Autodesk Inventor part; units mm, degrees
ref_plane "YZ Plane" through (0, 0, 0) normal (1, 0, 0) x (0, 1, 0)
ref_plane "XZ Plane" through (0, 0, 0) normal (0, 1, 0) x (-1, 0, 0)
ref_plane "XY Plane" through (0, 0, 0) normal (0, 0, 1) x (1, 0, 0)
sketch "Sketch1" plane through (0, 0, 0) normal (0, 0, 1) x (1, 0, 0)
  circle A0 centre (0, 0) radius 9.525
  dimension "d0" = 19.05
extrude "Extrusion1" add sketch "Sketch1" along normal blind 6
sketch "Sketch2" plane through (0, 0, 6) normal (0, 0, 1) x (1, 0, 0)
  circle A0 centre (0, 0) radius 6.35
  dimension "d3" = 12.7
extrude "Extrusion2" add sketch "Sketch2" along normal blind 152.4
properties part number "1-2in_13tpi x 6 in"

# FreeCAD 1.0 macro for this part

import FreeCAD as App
import Part
import Sketcher
from FreeCAD import Vector
Q = App.Units.Quantity

doc = App.newDocument("Part")
params = doc.addObject("Spreadsheet::Sheet", "Params")
for row, (alias, value) in enumerate([
    ("sketch1_diameter", "0.75 in"),
    ("pad1_length", "6 mm"),
    ("sketch2_diameter", "0.5 in"),
    ("pad2_length", "6 in"),
], start=1):
    params.set(f"A{row}", alias)
    params.set(f"B{row}", "=" + value)
    params.setAlias(f"B{row}", alias)

body = doc.addObject("PartDesign::Body", "Body")

sketch1 = doc.addObject("Sketcher::SketchObject", "Sketch")
body.addObject(sketch1)
sketch1.AttachmentSupport = (doc.XY_Plane, [""])
sketch1.MapMode = "FlatFace"
sketch1.addGeometry(Part.Circle(Vector(0, 0, 0), Vector(0, 0, 1), 10), False)
sketch1.addConstraint([
    Sketcher.Constraint("Coincident", 0, 3, -1, 1),
    Sketcher.Constraint("Diameter", 0, Q("0.75 in")),
])
sketch1.setExpression("Constraints[1]", "Params.sketch1_diameter")
pad1 = doc.addObject("PartDesign::Pad", "Pad")
body.addObject(pad1)
pad1.Profile = sketch1
pad1.setExpression("Length", "Params.pad1_length")

sketch2 = doc.addObject("Sketcher::SketchObject", "Sketch001")
body.addObject(sketch2)
sketch2.AttachmentSupport = (doc.XY_Plane, [""])
sketch2.MapMode = "FlatFace"
sketch2.AttachmentOffset = App.Placement(Vector(0, 0, 6), App.Rotation())
sketch2.addGeometry(Part.Circle(Vector(0, 0, 0), Vector(0, 0, 1), 6), False)
sketch2.addConstraint([
    Sketcher.Constraint("Coincident", 0, 3, -1, 1),
    Sketcher.Constraint("Diameter", 0, Q("0.5 in")),
])
sketch2.setExpression("Constraints[1]", "Params.sketch2_diameter")
pad2 = doc.addObject("PartDesign::Pad", "Pad001")
body.addObject(pad2)
pad2.Profile = sketch2
pad2.setExpression("Length", "Params.pad2_length")

doc.recompute()
